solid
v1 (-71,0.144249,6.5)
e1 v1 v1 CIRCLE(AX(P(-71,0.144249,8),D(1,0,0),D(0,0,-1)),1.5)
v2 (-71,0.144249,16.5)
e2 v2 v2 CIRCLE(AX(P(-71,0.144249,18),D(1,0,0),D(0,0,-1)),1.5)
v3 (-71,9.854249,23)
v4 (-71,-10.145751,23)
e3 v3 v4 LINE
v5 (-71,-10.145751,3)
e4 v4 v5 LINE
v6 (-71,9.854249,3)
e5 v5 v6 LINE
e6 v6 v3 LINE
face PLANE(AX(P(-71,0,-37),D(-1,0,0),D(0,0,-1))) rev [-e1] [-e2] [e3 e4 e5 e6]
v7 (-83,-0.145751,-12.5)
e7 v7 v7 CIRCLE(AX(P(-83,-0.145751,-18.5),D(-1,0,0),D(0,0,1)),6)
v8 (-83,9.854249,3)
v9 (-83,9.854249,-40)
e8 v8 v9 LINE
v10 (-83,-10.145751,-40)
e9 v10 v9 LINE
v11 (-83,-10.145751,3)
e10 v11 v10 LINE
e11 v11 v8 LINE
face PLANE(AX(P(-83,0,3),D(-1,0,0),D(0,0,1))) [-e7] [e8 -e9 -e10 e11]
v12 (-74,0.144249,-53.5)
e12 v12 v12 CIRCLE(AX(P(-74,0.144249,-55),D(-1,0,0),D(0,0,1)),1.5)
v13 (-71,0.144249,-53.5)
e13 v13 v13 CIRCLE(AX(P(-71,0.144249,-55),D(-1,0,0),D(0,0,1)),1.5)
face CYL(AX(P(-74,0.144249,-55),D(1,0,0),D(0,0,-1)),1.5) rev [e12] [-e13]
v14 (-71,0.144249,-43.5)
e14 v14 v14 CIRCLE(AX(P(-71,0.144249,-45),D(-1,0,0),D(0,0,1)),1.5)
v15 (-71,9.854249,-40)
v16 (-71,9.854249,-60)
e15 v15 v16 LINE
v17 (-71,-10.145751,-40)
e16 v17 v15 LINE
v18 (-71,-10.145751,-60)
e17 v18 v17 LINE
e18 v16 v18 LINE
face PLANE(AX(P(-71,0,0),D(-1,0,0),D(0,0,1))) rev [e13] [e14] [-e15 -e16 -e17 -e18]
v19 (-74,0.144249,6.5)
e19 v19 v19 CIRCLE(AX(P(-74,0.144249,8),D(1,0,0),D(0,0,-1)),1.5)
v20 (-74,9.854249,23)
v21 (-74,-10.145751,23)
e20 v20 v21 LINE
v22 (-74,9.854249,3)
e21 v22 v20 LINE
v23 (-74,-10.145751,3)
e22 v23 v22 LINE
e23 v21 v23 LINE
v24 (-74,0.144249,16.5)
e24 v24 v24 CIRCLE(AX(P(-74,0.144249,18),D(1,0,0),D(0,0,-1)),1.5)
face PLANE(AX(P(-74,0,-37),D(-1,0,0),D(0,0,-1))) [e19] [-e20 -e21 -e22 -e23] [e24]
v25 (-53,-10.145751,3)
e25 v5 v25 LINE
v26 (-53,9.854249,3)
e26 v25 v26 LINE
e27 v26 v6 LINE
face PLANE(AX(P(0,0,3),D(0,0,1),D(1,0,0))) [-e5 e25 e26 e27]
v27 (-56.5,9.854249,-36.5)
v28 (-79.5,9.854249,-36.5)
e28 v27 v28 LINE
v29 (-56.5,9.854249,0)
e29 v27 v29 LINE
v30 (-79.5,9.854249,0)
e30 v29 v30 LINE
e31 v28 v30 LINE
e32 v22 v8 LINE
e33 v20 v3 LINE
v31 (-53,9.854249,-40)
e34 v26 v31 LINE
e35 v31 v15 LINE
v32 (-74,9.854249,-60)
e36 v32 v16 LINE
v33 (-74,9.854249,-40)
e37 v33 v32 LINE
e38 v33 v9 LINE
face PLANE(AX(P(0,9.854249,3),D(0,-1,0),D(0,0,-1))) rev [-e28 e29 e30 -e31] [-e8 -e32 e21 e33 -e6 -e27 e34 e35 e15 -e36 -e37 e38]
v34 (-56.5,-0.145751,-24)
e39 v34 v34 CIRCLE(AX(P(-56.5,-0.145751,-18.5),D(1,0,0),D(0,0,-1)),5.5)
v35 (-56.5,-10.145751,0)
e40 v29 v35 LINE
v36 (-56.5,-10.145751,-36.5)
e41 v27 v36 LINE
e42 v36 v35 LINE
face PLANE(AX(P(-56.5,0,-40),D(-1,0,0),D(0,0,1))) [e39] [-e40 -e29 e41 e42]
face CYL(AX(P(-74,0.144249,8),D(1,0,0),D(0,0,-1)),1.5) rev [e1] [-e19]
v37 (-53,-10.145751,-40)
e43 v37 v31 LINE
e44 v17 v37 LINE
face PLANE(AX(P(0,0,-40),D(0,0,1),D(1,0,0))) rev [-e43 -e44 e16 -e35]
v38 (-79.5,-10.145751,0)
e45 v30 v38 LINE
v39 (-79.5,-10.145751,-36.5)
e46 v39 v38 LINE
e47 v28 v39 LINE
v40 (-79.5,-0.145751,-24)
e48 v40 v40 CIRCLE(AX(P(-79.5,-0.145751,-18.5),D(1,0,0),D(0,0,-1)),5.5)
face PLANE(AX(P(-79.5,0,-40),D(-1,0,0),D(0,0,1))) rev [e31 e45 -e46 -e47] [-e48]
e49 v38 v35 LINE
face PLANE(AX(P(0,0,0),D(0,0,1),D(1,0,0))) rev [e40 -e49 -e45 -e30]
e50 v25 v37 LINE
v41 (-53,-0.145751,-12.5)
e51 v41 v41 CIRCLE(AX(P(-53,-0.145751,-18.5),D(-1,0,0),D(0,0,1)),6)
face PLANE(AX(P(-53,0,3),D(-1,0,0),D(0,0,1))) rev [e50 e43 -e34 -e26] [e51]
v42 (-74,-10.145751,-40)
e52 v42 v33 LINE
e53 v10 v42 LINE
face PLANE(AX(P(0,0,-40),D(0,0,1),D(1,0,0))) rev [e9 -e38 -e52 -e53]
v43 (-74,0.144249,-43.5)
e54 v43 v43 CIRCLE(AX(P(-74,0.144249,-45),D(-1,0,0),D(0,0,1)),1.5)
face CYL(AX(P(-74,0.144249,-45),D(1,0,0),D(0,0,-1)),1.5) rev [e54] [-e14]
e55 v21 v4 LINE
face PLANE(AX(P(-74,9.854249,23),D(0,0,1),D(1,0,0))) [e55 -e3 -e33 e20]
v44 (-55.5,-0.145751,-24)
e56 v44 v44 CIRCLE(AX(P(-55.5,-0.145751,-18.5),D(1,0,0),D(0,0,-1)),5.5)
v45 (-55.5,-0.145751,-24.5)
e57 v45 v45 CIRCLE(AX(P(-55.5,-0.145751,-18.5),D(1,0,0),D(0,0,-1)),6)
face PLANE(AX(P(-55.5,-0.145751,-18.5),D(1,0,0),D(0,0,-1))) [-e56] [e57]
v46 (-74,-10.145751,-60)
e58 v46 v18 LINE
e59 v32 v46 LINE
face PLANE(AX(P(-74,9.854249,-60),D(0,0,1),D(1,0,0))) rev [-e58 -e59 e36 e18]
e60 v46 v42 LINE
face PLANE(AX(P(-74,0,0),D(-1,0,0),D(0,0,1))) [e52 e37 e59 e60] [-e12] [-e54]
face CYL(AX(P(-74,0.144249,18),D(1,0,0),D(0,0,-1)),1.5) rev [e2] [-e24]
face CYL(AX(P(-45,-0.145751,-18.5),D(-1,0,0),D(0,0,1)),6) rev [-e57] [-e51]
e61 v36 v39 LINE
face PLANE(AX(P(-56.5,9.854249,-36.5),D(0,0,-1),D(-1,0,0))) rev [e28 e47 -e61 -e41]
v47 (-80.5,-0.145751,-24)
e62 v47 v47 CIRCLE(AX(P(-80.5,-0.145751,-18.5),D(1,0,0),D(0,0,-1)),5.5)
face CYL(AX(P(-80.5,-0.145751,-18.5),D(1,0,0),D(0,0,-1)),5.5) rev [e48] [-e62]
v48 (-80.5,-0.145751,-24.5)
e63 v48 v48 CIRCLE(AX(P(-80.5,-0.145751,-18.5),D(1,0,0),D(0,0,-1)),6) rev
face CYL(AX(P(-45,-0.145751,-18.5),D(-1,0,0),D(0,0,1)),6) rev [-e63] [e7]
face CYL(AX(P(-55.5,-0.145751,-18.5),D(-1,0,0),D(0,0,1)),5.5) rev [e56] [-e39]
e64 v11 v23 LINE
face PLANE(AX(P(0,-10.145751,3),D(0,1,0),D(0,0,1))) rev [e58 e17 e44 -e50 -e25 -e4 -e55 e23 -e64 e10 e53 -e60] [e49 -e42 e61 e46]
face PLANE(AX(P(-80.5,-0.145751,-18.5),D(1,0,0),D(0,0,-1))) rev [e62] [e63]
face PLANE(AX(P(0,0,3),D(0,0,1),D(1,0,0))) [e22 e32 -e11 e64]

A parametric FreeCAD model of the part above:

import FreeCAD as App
import Part
import Sketcher

doc = App.newDocument("Part")
body = doc.addObject("PartDesign::Body", "Body")

sketch1 = doc.addObject("Sketcher::SketchObject", "Sketch")
body.addObject(sketch1)
sketch1.AttachmentSupport = (doc.XY_Plane, [""])
sketch1.MapMode = "FlatFace"
sketch1.addGeometry([
    Part.LineSegment(App.Vector(-83, 9.854249, 0), App.Vector(-83, -10.145751, 0)),
    Part.LineSegment(App.Vector(-83, -10.145751, 0), App.Vector(-53, -10.145751, 0)),
    Part.LineSegment(App.Vector(-53, -10.145751, 0), App.Vector(-53, 9.854249, 0)),
    Part.LineSegment(App.Vector(-53, 9.854249, 0), App.Vector(-83, 9.854249, 0)),
], False)
sketch1.addConstraint([
    Sketcher.Constraint("Coincident", 0, 2, 1, 1),
    Sketcher.Constraint("Coincident", 1, 2, 2, 1),
    Sketcher.Constraint("Coincident", 2, 2, 3, 1),
    Sketcher.Constraint("Coincident", 3, 2, 0, 1),
    Sketcher.Constraint("Vertical", 0),
    Sketcher.Constraint("Horizontal", 1),
    Sketcher.Constraint("Vertical", 2),
    Sketcher.Constraint("Horizontal", 3),
    Sketcher.Constraint("DistanceX", 1, 1, 1, 2, 30.0),
    Sketcher.Constraint("DistanceY", 0, 2, 0, 1, 20.0),
    Sketcher.Constraint("DistanceX", 0, 2, -1, 1, 83.0),
    Sketcher.Constraint("DistanceY", 0, 2, -1, 1, 10.145751),
])
pad1 = doc.addObject("PartDesign::Pad", "Pad")
body.addObject(pad1)
pad1.Profile = sketch1
pad1.Length = 3

sketch2 = doc.addObject("Sketcher::SketchObject", "Sketch001")
body.addObject(sketch2)
sketch2.AttachmentSupport = (doc.XY_Plane, [""])
sketch2.MapMode = "FlatFace"
sketch2.addGeometry([
    Part.LineSegment(App.Vector(-56.5, 9.854249, 0), App.Vector(-56.5, -10.145751, 0)),
    Part.LineSegment(App.Vector(-56.5, -10.145751, 0), App.Vector(-53, -10.145751, 0)),
    Part.LineSegment(App.Vector(-53, -10.145751, 0), App.Vector(-53, 9.854249, 0)),
    Part.LineSegment(App.Vector(-53, 9.854249, 0), App.Vector(-56.5, 9.854249, 0)),
], False)
sketch2.addConstraint([
    Sketcher.Constraint("Coincident", 0, 2, 1, 1),
    Sketcher.Constraint("Coincident", 1, 2, 2, 1),
    Sketcher.Constraint("Coincident", 2, 2, 3, 1),
    Sketcher.Constraint("Coincident", 3, 2, 0, 1),
    Sketcher.Constraint("Vertical", 0),
    Sketcher.Constraint("Horizontal", 1),
    Sketcher.Constraint("Vertical", 2),
    Sketcher.Constraint("Horizontal", 3),
    Sketcher.Constraint("DistanceY", 0, 2, 0, 1, 20.0),
    Sketcher.Constraint("DistanceX", 1, 1, 1, 2, 3.5),
    Sketcher.Constraint("DistanceX", 1, 2, -1, 1, 53.0),
    Sketcher.Constraint("DistanceY", 0, 2, -1, 1, 10.145751),
])
pad2 = doc.addObject("PartDesign::Pad", "Pad001")
body.addObject(pad2)
pad2.Profile = sketch2
pad2.Length = 40
pad2.Reversed = True

sketch3 = doc.addObject("Sketcher::SketchObject", "Sketch002")
body.addObject(sketch3)
sketch3.AttachmentSupport = (doc.XY_Plane, [""])
sketch3.MapMode = "FlatFace"
sketch3.addGeometry([
    Part.LineSegment(App.Vector(-83, 9.854249, 0), App.Vector(-83, -10.145751, 0)),
    Part.LineSegment(App.Vector(-83, -10.145751, 0), App.Vector(-79.5, -10.145751, 0)),
    Part.LineSegment(App.Vector(-79.5, -10.145751, 0), App.Vector(-79.5, 9.854249, 0)),
    Part.LineSegment(App.Vector(-79.5, 9.854249, 0), App.Vector(-83, 9.854249, 0)),
], False)
sketch3.addConstraint([
    Sketcher.Constraint("Coincident", 0, 2, 1, 1),
    Sketcher.Constraint("Coincident", 1, 2, 2, 1),
    Sketcher.Constraint("Coincident", 2, 2, 3, 1),
    Sketcher.Constraint("Coincident", 3, 2, 0, 1),
    Sketcher.Constraint("Vertical", 0),
    Sketcher.Constraint("Horizontal", 1),
    Sketcher.Constraint("Vertical", 2),
    Sketcher.Constraint("Horizontal", 3),
    Sketcher.Constraint("DistanceY", 0, 2, 0, 1, 20.0),
    Sketcher.Constraint("DistanceX", 1, 1, 1, 2, 3.5),
    Sketcher.Constraint("DistanceX", 0, 2, -1, 1, 83.0),
    Sketcher.Constraint("DistanceY", 0, 2, -1, 1, 10.145751),
])
pad3 = doc.addObject("PartDesign::Pad", "Pad002")
body.addObject(pad3)
pad3.Profile = sketch3
pad3.Length = 40
pad3.Reversed = True

sketch4 = doc.addObject("Sketcher::SketchObject", "Sketch003")
body.addObject(sketch4)
sketch4.AttachmentSupport = (doc.YZ_Plane, [""])
sketch4.MapMode = "FlatFace"
sketch4.AttachmentOffset = App.Placement(App.Vector(0, 0, -83), App.Rotation())
sketch4.addGeometry(Part.Circle(App.Vector(-0.145751, -18.5, 0), App.Vector(0, 0, 1), 6), False)
sketch4.addConstraint([
    Sketcher.Constraint("Diameter", 0, 12.0),
    Sketcher.Constraint("DistanceY", 0, 3, -1, 1, 18.5),
    Sketcher.Constraint("DistanceX", 0, 3, -1, 1, 0.145751),
])
pocket1 = doc.addObject("PartDesign::Pocket", "Pocket")
body.addObject(pocket1)
pocket1.Profile = sketch4
pocket1.Length = 38
pocket1.Reversed = True

sketch5 = doc.addObject("Sketcher::SketchObject", "Sketch004")
body.addObject(sketch5)
sketch5.AttachmentSupport = (doc.YZ_Plane, [""])
sketch5.MapMode = "FlatFace"
sketch5.AttachmentOffset = App.Placement(App.Vector(0, 0, -56.5), App.Rotation())
sketch5.addGeometry([
    Part.Circle(App.Vector(-0.145751, -18.5, 0), App.Vector(0, 0, 1), 6),
    Part.Circle(App.Vector(-0.145751, -18.5, 0), App.Vector(0, 0, 1), 5.5),
], False)
sketch5.addConstraint([
    Sketcher.Constraint("Coincident", 1, 3, 0, 3),
    Sketcher.Constraint("Diameter", 0, 12.0),
    Sketcher.Constraint("Diameter", 1, 11.0),
    Sketcher.Constraint("DistanceY", 0, 3, -1, 1, 18.5),
    Sketcher.Constraint("DistanceX", 0, 3, -1, 1, 0.145751),
])
pad4 = doc.addObject("PartDesign::Pad", "Pad003")
body.addObject(pad4)
pad4.Profile = sketch5
pad4.Length = 1

sketch6 = doc.addObject("Sketcher::SketchObject", "Sketch005")
body.addObject(sketch6)
sketch6.AttachmentSupport = (doc.YZ_Plane, [""])
sketch6.MapMode = "FlatFace"
sketch6.AttachmentOffset = App.Placement(App.Vector(0, 0, -79.5), App.Rotation())
sketch6.addGeometry([
    Part.Circle(App.Vector(-0.145751, -18.5, 0), App.Vector(0, 0, 1), 6),
    Part.Circle(App.Vector(-0.145751, -18.5, 0), App.Vector(0, 0, 1), 5.5),
], False)
sketch6.addConstraint([
    Sketcher.Constraint("Coincident", 1, 3, 0, 3),
    Sketcher.Constraint("Diameter", 0, 12.0),
    Sketcher.Constraint("Diameter", 1, 11.0),
    Sketcher.Constraint("DistanceY", 0, 3, -1, 1, 18.5),
    Sketcher.Constraint("DistanceX", 0, 3, -1, 1, 0.145751),
])
pad5 = doc.addObject("PartDesign::Pad", "Pad004")
body.addObject(pad5)
pad5.Profile = sketch6
pad5.Length = 1
pad5.Reversed = True

sketch7 = doc.addObject("Sketcher::SketchObject", "Sketch006")
body.addObject(sketch7)
sketch7.AttachmentSupport = (doc.YZ_Plane, [""])
sketch7.MapMode = "FlatFace"
sketch7.AttachmentOffset = App.Placement(App.Vector(0, 0, -79.5), App.Rotation())
sketch7.addGeometry([
    Part.LineSegment(App.Vector(9.854249, -36.5, 0), App.Vector(-10.145751, -36.5, 0)),
    Part.LineSegment(App.Vector(-10.145751, -36.5, 0), App.Vector(-10.145751, -40, 0)),
    Part.LineSegment(App.Vector(-10.145751, -40, 0), App.Vector(9.854249, -40, 0)),
    Part.LineSegment(App.Vector(9.854249, -40, 0), App.Vector(9.854249, -36.5, 0)),
], False)
sketch7.addConstraint([
    Sketcher.Constraint("Coincident", 0, 2, 1, 1),
    Sketcher.Constraint("Coincident", 1, 2, 2, 1),
    Sketcher.Constraint("Coincident", 2, 2, 3, 1),
    Sketcher.Constraint("Coincident", 3, 2, 0, 1),
    Sketcher.Constraint("Horizontal", 0),
    Sketcher.Constraint("Vertical", 1),
    Sketcher.Constraint("Horizontal", 2),
    Sketcher.Constraint("Vertical", 3),
    Sketcher.Constraint("DistanceX", 0, 2, 0, 1, 20.0),
    Sketcher.Constraint("DistanceY", 1, 2, 1, 1, 3.5),
    Sketcher.Constraint("DistanceY", 1, 2, -1, 1, 40.0),
    Sketcher.Constraint("DistanceX", 0, 2, -1, 1, 10.145751),
])
pad6 = doc.addObject("PartDesign::Pad", "Pad005")
body.addObject(pad6)
pad6.Profile = sketch7
pad6.Length = 23

sketch8 = doc.addObject("Sketcher::SketchObject", "Sketch007")
body.addObject(sketch8)
sketch8.AttachmentSupport = (doc.YZ_Plane, [""])
sketch8.MapMode = "FlatFace"
sketch8.AttachmentOffset = App.Placement(App.Vector(0, 0, -71), App.Rotation())
sketch8.addGeometry([
    Part.LineSegment(App.Vector(9.854249, -60, 0), App.Vector(-10.145751, -60, 0)),
    Part.LineSegment(App.Vector(-10.145751, -60, 0), App.Vector(-10.145751, -40, 0)),
    Part.LineSegment(App.Vector(-10.145751, -40, 0), App.Vector(9.854249, -40, 0)),
    Part.LineSegment(App.Vector(9.854249, -40, 0), App.Vector(9.854249, -60, 0)),
    Part.Circle(App.Vector(0.144249, -55, 0), App.Vector(0, 0, 1), 1.5),
    Part.Circle(App.Vector(0.144249, -45, 0), App.Vector(0, 0, 1), 1.5),
], False)
sketch8.addConstraint([
    Sketcher.Constraint("Coincident", 0, 2, 1, 1),
    Sketcher.Constraint("Coincident", 1, 2, 2, 1),
    Sketcher.Constraint("Coincident", 2, 2, 3, 1),
    Sketcher.Constraint("Coincident", 3, 2, 0, 1),
    Sketcher.Constraint("Horizontal", 0),
    Sketcher.Constraint("Vertical", 1),
    Sketcher.Constraint("Horizontal", 2),
    Sketcher.Constraint("Vertical", 3),
    Sketcher.Constraint("Equal", 4, 5),
    Sketcher.Constraint("Vertical", 4, 3, 5, 3),
    Sketcher.Constraint("Equal", 2, 1),
    Sketcher.Constraint("Diameter", 4, 3.0),
    Sketcher.Constraint("DistanceX", 0, 2, 0, 1, 20.0),
    Sketcher.Constraint("DistanceY", 4, 3, -1, 1, 55.0),
    Sketcher.Constraint("DistanceY", 5, 3, -1, 1, 45.0),
    Sketcher.Constraint("DistanceY", 0, 2, -1, 1, 60.0),
    Sketcher.Constraint("DistanceX", 0, 2, 4, 3, 10.29),
    Sketcher.Constraint("DistanceX", -1, 1, 4, 3, 0.144249),
])
pad7 = doc.addObject("PartDesign::Pad", "Pad006")
body.addObject(pad7)
pad7.Profile = sketch8
pad7.Length = 3
pad7.Reversed = True
doc.recompute()

datumplane = doc.addObject("PartDesign::Plane", "DatumPlane")
body.addObject(datumplane)
datumplane.AttachmentSupport = (doc.XY_Plane, [""])
datumplane.MapMode = "FlatFace"
datumplane.AttachmentOffset = App.Placement(App.Vector(0, 0, -18.5), App.Rotation())
mirrored = doc.addObject("PartDesign::Mirrored", "Mirrored")
body.addObject(mirrored)
mirrored.Originals = [pad7]
mirrored.MirrorPlane = (datumplane, [""])
body.Tip = mirrored

doc.recompute()
